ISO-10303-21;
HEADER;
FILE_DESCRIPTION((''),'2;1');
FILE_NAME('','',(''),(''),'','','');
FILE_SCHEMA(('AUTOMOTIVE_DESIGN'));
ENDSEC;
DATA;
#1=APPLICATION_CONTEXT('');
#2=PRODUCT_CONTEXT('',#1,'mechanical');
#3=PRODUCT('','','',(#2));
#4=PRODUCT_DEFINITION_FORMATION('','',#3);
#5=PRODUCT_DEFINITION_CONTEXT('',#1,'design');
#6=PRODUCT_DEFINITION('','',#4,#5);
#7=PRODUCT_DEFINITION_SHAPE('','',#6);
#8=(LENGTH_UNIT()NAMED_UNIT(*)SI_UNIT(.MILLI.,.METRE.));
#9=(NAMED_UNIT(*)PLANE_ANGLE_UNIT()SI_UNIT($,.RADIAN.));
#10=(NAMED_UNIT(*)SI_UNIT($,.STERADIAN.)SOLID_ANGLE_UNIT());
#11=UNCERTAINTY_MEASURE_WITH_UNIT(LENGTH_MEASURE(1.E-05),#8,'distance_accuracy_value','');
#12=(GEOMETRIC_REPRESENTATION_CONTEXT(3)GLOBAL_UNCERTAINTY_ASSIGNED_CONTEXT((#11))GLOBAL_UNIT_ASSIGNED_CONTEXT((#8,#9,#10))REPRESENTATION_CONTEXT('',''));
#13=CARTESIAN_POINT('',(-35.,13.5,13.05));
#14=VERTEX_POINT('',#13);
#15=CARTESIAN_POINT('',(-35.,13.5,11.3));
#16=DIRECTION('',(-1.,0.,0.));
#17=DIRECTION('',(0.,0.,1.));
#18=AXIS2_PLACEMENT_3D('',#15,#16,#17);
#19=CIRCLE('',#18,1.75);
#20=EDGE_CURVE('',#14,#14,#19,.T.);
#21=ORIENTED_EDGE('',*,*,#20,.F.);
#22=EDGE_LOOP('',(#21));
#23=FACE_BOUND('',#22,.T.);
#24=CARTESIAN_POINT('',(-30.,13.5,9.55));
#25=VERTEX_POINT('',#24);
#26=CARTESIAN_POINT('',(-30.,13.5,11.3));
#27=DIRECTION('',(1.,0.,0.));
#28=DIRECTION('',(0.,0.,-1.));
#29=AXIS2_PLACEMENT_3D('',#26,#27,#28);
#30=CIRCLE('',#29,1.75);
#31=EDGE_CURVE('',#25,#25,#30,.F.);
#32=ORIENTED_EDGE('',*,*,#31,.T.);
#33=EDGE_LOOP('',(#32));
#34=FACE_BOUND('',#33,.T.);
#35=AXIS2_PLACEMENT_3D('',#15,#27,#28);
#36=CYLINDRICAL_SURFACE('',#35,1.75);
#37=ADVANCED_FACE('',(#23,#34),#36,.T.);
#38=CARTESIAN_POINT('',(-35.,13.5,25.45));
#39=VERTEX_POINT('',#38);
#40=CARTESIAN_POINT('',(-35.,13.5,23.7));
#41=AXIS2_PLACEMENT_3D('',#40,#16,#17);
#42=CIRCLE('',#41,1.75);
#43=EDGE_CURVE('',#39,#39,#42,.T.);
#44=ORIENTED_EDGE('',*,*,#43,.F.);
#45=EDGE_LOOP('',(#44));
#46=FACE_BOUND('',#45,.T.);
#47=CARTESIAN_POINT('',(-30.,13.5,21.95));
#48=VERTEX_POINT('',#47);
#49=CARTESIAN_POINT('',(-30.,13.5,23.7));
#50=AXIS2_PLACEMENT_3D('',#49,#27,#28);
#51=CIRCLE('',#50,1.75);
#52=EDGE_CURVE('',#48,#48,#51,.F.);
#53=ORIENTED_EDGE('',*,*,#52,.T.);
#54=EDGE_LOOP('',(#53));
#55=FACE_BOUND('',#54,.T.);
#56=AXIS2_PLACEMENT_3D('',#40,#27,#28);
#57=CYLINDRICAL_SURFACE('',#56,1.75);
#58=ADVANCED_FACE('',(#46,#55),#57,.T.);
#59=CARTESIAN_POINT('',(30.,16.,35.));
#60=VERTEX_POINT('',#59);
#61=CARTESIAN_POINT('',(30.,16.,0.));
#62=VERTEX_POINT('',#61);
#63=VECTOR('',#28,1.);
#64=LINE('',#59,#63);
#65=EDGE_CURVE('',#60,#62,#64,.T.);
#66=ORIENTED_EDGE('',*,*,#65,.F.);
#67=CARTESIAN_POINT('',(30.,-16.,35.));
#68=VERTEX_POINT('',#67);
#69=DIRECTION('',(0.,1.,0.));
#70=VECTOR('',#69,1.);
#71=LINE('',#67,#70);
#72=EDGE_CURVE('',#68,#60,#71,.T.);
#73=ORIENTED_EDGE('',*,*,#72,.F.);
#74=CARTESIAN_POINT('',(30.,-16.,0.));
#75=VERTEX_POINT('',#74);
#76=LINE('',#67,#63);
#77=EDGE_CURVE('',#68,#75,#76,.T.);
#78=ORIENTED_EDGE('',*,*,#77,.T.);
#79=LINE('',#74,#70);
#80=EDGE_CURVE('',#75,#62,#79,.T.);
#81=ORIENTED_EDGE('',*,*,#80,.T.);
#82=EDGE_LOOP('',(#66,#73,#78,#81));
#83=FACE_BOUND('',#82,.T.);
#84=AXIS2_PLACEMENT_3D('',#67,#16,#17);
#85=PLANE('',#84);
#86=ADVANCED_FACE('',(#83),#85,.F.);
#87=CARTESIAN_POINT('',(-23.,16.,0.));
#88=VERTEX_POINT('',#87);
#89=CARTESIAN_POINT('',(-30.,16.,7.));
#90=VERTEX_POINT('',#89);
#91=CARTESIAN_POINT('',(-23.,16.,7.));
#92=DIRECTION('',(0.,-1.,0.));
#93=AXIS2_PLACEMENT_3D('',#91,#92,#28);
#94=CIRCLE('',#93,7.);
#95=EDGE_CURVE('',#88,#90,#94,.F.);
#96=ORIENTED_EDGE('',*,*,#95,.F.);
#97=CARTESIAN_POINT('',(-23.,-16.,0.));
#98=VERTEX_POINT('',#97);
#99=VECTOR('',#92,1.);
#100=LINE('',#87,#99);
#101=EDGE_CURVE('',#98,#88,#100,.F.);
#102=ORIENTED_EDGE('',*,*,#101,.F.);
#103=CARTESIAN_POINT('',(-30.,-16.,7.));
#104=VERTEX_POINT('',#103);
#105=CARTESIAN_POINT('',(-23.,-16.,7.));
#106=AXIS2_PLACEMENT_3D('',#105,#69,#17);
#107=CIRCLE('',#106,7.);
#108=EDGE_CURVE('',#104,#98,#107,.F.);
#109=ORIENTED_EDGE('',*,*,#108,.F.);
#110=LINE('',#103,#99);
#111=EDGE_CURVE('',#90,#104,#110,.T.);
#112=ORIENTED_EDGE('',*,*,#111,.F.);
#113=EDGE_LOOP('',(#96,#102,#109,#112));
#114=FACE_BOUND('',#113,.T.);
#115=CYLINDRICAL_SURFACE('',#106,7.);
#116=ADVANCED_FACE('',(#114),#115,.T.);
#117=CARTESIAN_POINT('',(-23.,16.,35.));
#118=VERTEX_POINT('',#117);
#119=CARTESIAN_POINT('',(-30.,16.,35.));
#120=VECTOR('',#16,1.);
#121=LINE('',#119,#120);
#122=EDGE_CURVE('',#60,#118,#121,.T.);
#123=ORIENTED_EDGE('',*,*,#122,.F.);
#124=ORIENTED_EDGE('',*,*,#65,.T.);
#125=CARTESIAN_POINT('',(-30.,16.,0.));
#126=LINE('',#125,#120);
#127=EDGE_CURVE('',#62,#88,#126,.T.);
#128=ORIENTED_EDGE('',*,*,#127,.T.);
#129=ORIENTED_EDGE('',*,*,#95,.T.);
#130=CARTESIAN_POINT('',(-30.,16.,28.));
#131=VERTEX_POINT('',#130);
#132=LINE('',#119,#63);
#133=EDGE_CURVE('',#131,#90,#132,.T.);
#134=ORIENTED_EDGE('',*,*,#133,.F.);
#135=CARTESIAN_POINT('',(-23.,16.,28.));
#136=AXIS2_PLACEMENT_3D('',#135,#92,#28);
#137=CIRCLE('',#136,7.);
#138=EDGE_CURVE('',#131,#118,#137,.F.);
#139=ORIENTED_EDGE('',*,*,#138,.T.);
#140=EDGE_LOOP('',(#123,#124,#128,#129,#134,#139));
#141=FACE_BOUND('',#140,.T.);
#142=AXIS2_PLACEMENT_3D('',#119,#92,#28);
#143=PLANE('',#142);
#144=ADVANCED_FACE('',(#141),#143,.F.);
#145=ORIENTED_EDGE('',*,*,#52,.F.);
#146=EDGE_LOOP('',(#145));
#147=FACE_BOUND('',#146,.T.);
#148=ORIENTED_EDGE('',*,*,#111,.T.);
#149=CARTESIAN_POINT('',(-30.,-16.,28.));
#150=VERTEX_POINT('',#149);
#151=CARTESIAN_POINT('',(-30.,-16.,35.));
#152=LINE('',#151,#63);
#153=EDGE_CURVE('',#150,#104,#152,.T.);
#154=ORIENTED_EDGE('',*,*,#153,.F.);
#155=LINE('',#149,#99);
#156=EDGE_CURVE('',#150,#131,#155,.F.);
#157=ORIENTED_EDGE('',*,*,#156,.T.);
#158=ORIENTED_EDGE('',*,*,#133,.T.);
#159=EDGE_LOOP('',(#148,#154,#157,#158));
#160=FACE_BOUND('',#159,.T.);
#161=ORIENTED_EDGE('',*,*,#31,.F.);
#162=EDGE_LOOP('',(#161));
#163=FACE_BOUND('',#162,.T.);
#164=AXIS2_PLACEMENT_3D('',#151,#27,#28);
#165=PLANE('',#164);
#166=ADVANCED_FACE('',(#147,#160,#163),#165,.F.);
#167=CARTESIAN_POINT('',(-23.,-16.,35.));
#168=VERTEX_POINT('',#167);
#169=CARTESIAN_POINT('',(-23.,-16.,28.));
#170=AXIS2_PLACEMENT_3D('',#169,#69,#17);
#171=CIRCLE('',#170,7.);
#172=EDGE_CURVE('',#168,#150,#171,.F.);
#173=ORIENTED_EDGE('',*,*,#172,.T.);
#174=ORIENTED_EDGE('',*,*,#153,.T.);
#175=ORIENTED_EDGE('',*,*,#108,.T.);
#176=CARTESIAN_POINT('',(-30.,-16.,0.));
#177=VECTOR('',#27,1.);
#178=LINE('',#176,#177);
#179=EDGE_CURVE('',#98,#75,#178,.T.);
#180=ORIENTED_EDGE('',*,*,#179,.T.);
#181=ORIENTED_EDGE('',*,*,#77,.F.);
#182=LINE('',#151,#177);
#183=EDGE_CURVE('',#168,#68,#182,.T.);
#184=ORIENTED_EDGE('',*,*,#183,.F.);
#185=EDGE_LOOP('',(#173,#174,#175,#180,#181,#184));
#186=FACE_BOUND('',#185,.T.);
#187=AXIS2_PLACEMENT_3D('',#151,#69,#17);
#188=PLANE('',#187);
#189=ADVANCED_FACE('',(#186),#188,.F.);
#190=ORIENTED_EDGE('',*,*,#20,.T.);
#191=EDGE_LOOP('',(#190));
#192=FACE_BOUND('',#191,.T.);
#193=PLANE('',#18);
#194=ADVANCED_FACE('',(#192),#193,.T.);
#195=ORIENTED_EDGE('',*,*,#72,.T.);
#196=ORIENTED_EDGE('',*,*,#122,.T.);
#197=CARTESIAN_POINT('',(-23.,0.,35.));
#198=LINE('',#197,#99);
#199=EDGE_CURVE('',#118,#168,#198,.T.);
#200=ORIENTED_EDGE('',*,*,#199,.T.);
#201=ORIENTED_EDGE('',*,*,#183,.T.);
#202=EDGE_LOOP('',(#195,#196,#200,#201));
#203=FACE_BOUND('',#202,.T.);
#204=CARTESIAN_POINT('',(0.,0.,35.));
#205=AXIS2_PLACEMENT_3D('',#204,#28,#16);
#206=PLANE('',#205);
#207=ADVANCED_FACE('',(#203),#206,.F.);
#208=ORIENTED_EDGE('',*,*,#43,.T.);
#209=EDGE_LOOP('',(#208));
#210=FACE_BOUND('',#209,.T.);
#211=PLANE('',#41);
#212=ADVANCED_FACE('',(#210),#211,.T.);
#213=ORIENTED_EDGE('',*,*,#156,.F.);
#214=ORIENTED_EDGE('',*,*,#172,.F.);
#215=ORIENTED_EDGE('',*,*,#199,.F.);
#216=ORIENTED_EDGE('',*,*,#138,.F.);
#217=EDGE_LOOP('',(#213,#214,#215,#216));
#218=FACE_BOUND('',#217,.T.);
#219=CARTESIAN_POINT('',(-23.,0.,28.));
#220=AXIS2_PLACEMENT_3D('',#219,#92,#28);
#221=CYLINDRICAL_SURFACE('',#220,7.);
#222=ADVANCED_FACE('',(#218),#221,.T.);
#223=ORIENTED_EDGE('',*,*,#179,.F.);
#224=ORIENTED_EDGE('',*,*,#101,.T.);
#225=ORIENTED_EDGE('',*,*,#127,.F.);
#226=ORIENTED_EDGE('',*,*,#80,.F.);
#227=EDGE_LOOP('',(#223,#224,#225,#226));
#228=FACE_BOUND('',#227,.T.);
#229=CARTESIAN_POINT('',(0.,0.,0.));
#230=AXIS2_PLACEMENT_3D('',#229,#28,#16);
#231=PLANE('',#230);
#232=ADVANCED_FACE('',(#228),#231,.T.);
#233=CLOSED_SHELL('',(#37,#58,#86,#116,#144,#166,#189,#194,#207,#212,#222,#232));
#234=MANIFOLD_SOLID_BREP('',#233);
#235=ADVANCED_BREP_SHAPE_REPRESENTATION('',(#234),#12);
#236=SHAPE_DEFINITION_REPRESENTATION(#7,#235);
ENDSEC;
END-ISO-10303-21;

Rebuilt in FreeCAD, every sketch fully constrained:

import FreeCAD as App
import Part
import Sketcher
from FreeCAD import Vector


def edges_at(feature, points):
    """Names of the edges that pass closest to the given points."""
    edges = feature.Shape.Edges
    near = lambda p: min(range(len(edges)), key=lambda i: edges[i].distToShape(Part.Vertex(*p))[0])
    return sorted({f"Edge{near(p) + 1}" for p in points})

doc = App.newDocument("Part")
params = doc.addObject("Spreadsheet::Sheet", "Params")
for row, (alias, value) in enumerate([
    ("sketch1_width", "60 mm"),
    ("sketch1_height", "32 mm"),
    ("pad1_length", "35 mm"),
    ("fillet_radius", "7 mm"),
    ("sketch2_diameter", "3.5 mm"),
    ("pad2_length", "5 mm"),
], start=1):
    params.set(f"A{row}", alias)
    params.set(f"B{row}", "=" + value)
    params.setAlias(f"B{row}", alias)

body = doc.addObject("PartDesign::Body", "Body")

# Sketch on XY plane
sketch1 = doc.addObject("Sketcher::SketchObject", "Sketch")
body.addObject(sketch1)
sketch1.AttachmentSupport = (doc.XY_Plane, [""])
sketch1.MapMode = "FlatFace"
sketch1.addGeometry(Part.LineSegment(Vector(-30, 16, 0), Vector(-30, -16, 0)), False)
sketch1.addGeometry(Part.LineSegment(Vector(-30, -16, 0), Vector(30, -16, 0)), False)
sketch1.addGeometry(Part.LineSegment(Vector(30, -16, 0), Vector(30, 16, 0)), False)
sketch1.addGeometry(Part.LineSegment(Vector(30, 16, 0), Vector(-30, 16, 0)), False)
sketch1.addConstraint(Sketcher.Constraint("Coincident", 0, 2, 1, 1))
sketch1.addConstraint(Sketcher.Constraint("Coincident", 1, 2, 2, 1))
sketch1.addConstraint(Sketcher.Constraint("Coincident", 2, 2, 3, 1))
sketch1.addConstraint(Sketcher.Constraint("Coincident", 3, 2, 0, 1))
sketch1.addConstraint(Sketcher.Constraint("Vertical", 0))
sketch1.addConstraint(Sketcher.Constraint("Horizontal", 1))
sketch1.addConstraint(Sketcher.Constraint("Vertical", 2))
sketch1.addConstraint(Sketcher.Constraint("Horizontal", 3))
sketch1.addConstraint(Sketcher.Constraint("Symmetric", 0, 2, 2, 2, -1, 1))
sketch1.addConstraint(Sketcher.Constraint("DistanceX", 1, 1, 1, 2, 60.0))
sketch1.addConstraint(Sketcher.Constraint("DistanceY", 0, 2, 0, 1, 32.0))
sketch1.setExpression("Constraints[9]", "Params.sketch1_width")
sketch1.setExpression("Constraints[10]", "Params.sketch1_height")
pad1 = doc.addObject("PartDesign::Pad", "Pad")
body.addObject(pad1)
pad1.Profile = sketch1
pad1.setExpression("Length", "Params.pad1_length")
doc.recompute()

fillet = doc.addObject("PartDesign::Fillet", "Fillet")
body.addObject(fillet)
fillet.Base = (pad1, edges_at(pad1, [(-30, 0, 35), (-30, 0, 0)]))
fillet.setExpression("Radius", "Params.fillet_radius")

# Sketch on YZ plane
sketch2 = doc.addObject("Sketcher::SketchObject", "Sketch001")
body.addObject(sketch2)
sketch2.AttachmentSupport = (doc.YZ_Plane, [""])
sketch2.MapMode = "FlatFace"
sketch2.AttachmentOffset = App.Placement(Vector(0, 0, -30), App.Rotation())
sketch2.addGeometry(Part.Circle(Vector(13.5, 11.3, 0), Vector(0, 0, 1), 1.8), False)
sketch2.addGeometry(Part.Circle(Vector(13.5, 23.7, 0), Vector(0, 0, 1), 1.8), False)
sketch2.addConstraint(Sketcher.Constraint("Equal", 0, 1))
sketch2.addConstraint(Sketcher.Constraint("Vertical", 0, 3, 1, 3))
sketch2.addConstraint(Sketcher.Constraint("Diameter", 0, 3.5))
sketch2.addConstraint(Sketcher.Constraint("DistanceX", -1, 1, 0, 3, 13.5))
sketch2.addConstraint(Sketcher.Constraint("DistanceY", -1, 1, 0, 3, 11.3))
sketch2.addConstraint(Sketcher.Constraint("DistanceY", -1, 1, 1, 3, 23.7))
sketch2.setExpression("Constraints[2]", "Params.sketch2_diameter")
pad2 = doc.addObject("PartDesign::Pad", "Pad001")
body.addObject(pad2)
pad2.Profile = sketch2
pad2.setExpression("Length", "Params.pad2_length")
pad2.Reversed = True

doc.recompute()
